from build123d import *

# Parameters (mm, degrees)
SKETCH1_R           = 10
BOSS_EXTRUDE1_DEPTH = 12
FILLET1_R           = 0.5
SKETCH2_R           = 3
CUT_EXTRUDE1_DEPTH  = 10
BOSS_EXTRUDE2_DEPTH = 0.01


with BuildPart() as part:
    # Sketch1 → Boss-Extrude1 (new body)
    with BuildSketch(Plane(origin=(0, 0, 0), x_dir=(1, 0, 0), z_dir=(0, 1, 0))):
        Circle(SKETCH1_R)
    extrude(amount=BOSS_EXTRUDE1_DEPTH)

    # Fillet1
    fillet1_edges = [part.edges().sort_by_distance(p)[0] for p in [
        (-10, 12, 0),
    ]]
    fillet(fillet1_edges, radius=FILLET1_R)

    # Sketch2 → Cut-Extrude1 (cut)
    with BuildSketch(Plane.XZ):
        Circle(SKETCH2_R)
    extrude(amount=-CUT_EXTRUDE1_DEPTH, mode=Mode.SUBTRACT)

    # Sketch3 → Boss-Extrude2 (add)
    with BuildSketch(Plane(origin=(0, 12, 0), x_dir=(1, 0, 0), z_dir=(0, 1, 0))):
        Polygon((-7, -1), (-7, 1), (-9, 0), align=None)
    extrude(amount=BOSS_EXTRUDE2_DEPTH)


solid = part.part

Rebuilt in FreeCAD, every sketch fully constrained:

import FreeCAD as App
import Part
import Sketcher
Q = App.Units.Quantity


def edges_at(feature, points):
    """Names of the edges that pass closest to the given points."""
    edges = feature.Shape.Edges
    near = lambda p: min(range(len(edges)), key=lambda i: edges[i].distToShape(Part.Vertex(*p))[0])
    return sorted({f"Edge{near(p) + 1}" for p in points})

doc = App.newDocument("Part")
params = doc.addObject("Spreadsheet::Sheet", "Params")
for row, (alias, value) in enumerate([
    ("sketch1_diameter", "20 mm"),
    ("pad1_length", "12 mm"),
    ("fillet_radius", "0.5 mm"),
    ("sketch2_diameter", "6 mm"),
    ("pocket1_length", "10 mm"),
    ("sketch3_height", "2 mm"),
    ("pad2_length", "0.01 mm"),
], start=1):
    params.set(f"A{row}", alias)
    params.set(f"B{row}", "=" + value)
    params.setAlias(f"B{row}", alias)

body = doc.addObject("PartDesign::Body", "Body")

# Sketch on XZ plane
sketch1 = body.newObject("Sketcher::SketchObject", "Sketch")
sketch1.AttachmentSupport = (doc.getObject("XZ_Plane"), [""])
sketch1.MapMode = "FlatFace"
sketch1.addGeometry(Part.Circle(App.Vector(0, 0, 0), App.Vector(0, 0, 1), 10), False)
sketch1.addConstraint(Sketcher.Constraint("Coincident", 0, 3, -1, 1))
sketch1.addConstraint(Sketcher.Constraint("Diameter", 0, Q("20 mm")))
sketch1.setExpression("Constraints[1]", "Params.sketch1_diameter")
pad1 = body.newObject("PartDesign::Pad", "Pad")
pad1.Profile = sketch1
pad1.setExpression("Length", "Params.pad1_length")
pad1.Reversed = True
doc.recompute()

fillet = body.newObject("PartDesign::Fillet", "Fillet")
fillet.Base = (pad1, edges_at(pad1, [(-10, 12, 0)]))
fillet.setExpression("Radius", "Params.fillet_radius")

# Sketch on XZ plane
sketch2 = body.newObject("Sketcher::SketchObject", "Sketch001")
sketch2.AttachmentSupport = (doc.getObject("XZ_Plane"), [""])
sketch2.MapMode = "FlatFace"
sketch2.addGeometry(Part.Circle(App.Vector(0, 0, 0), App.Vector(0, 0, 1), 3), False)
sketch2.addConstraint(Sketcher.Constraint("Coincident", 0, 3, -1, 1))
sketch2.addConstraint(Sketcher.Constraint("Diameter", 0, Q("6 mm")))
sketch2.setExpression("Constraints[1]", "Params.sketch2_diameter")
pocket1 = body.newObject("PartDesign::Pocket", "Pocket")
pocket1.Profile = sketch2
pocket1.setExpression("Length", "Params.pocket1_length")

# Sketch on XZ plane
sketch3 = body.newObject("Sketcher::SketchObject", "Sketch002")
sketch3.AttachmentSupport = (doc.getObject("XZ_Plane"), [""])
sketch3.MapMode = "FlatFace"
sketch3.AttachmentOffset = App.Placement(App.Vector(0, 0, -12), App.Rotation())
sketch3.addGeometry(Part.LineSegment(App.Vector(-7, 1, 0), App.Vector(-7, -1, 0)), False)
sketch3.addGeometry(Part.LineSegment(App.Vector(-7, -1, 0), App.Vector(-9, 0, 0)), False)
sketch3.addGeometry(Part.LineSegment(App.Vector(-9, 0, 0), App.Vector(-7, 1, 0)), False)
sketch3.addConstraint(Sketcher.Constraint("Coincident", 0, 2, 1, 1))
sketch3.addConstraint(Sketcher.Constraint("Coincident", 1, 2, 2, 1))
sketch3.addConstraint(Sketcher.Constraint("Coincident", 2, 2, 0, 1))
sketch3.addConstraint(Sketcher.Constraint("Vertical", 0))
sketch3.addConstraint(Sketcher.Constraint("PointOnObject", 1, 2, -1))
sketch3.addConstraint(Sketcher.Constraint("Equal", 1, 2))
sketch3.addConstraint(Sketcher.Constraint("DistanceY", 0, 2, 0, 1, Q("2 mm")))
sketch3.addConstraint(Sketcher.Constraint("DistanceX", 0, 2, -1, 1, Q("7 mm")))
sketch3.addConstraint(Sketcher.Constraint("DistanceX", 1, 2, -1, 1, Q("9 mm")))
sketch3.setExpression("Constraints[6]", "Params.sketch3_height")
pad2 = body.newObject("PartDesign::Pad", "Pad001")
pad2.Profile = sketch3
pad2.setExpression("Length", "Params.pad2_length")
pad2.Reversed = True

doc.recompute()
